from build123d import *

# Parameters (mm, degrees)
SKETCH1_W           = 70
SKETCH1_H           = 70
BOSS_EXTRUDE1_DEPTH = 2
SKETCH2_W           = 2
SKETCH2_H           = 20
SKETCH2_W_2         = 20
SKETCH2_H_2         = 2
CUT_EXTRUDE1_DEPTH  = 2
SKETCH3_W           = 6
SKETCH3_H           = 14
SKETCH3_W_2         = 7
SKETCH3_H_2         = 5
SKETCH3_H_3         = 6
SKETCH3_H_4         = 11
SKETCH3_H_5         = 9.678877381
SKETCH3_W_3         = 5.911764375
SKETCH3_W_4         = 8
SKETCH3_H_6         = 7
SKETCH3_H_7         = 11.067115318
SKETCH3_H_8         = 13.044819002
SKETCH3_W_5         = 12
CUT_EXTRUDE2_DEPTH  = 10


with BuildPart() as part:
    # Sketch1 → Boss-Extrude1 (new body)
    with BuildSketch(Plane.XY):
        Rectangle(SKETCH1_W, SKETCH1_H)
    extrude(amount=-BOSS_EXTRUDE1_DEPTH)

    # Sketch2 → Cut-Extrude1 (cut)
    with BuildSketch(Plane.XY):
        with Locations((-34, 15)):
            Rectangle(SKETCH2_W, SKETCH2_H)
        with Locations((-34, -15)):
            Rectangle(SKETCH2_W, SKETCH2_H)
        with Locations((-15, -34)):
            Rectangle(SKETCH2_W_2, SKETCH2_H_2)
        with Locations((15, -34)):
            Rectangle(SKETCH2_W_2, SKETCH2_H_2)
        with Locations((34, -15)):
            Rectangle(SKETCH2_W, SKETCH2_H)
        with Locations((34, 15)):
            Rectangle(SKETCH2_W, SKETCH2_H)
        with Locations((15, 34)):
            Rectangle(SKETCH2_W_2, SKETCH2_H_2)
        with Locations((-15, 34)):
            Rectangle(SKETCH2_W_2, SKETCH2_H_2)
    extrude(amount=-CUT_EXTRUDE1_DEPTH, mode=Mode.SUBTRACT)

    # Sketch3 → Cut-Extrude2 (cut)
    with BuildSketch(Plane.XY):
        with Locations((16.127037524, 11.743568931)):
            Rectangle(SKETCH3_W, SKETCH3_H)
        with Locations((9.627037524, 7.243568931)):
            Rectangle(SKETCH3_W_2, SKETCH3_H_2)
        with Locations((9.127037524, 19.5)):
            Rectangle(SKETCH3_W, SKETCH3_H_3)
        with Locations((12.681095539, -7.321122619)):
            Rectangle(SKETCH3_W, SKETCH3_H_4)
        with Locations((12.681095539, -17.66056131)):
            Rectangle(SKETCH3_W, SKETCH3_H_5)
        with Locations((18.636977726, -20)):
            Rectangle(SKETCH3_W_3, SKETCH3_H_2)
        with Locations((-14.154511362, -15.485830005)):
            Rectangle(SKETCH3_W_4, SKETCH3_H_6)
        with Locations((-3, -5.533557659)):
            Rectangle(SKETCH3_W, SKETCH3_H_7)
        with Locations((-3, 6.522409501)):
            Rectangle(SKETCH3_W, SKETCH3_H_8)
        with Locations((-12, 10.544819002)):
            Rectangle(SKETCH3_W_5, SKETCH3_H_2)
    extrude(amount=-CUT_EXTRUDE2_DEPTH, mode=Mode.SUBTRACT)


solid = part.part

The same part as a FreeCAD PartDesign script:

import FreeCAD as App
import Part
import Sketcher

V = App.Vector
Q = App.Units.Quantity

doc = App.newDocument("Part")
params = doc.addObject("Spreadsheet::Sheet", "Params")
for row, (alias, value) in enumerate([
    ("sketch1_width", "70 mm"),
    ("pad1_length", "2 mm"),
    ("sketch2_width", "2 mm"),
    ("sketch2_width2", "20 mm"),
    ("pocket1_length", "2 mm"),
    ("sketch3_width", "7 mm"),
    ("sketch3_width2", "13 mm"),
    ("sketch3_width3", "8 mm"),
    ("sketch3_width4", "18 mm"),
    ("sketch3_height", "9 mm"),
    ("pocket2_length", "10 mm"),
], start=1):
    params.set(f"A{row}", alias)
    params.set(f"B{row}", "=" + value)
    params.setAlias(f"B{row}", alias)

body = doc.addObject("PartDesign::Body", "Body")

sketch1 = doc.addObject("Sketcher::SketchObject", "Sketch")
body.addObject(sketch1)
sketch1.AttachmentSupport = (doc.XY_Plane, [""])
sketch1.MapMode = "FlatFace"
sketch1.addGeometry(Part.LineSegment(V(-35, 35, 0), V(-35, -35, 0)), False)
sketch1.addGeometry(Part.LineSegment(V(-35, -35, 0), V(35, -35, 0)), False)
sketch1.addGeometry(Part.LineSegment(V(35, -35, 0), V(35, 35, 0)), False)
sketch1.addGeometry(Part.LineSegment(V(35, 35, 0), V(-35, 35, 0)), False)
sketch1.addConstraint(Sketcher.Constraint("Coincident", 0, 2, 1, 1))
sketch1.addConstraint(Sketcher.Constraint("Coincident", 1, 2, 2, 1))
sketch1.addConstraint(Sketcher.Constraint("Coincident", 2, 2, 3, 1))
sketch1.addConstraint(Sketcher.Constraint("Coincident", 3, 2, 0, 1))
sketch1.addConstraint(Sketcher.Constraint("Vertical", 0))
sketch1.addConstraint(Sketcher.Constraint("Horizontal", 1))
sketch1.addConstraint(Sketcher.Constraint("Vertical", 2))
sketch1.addConstraint(Sketcher.Constraint("Horizontal", 3))
sketch1.addConstraint(Sketcher.Constraint("Symmetric", 0, 2, 2, 2, -1, 1))
sketch1.addConstraint(Sketcher.Constraint("Equal", 3, 0))
sketch1.addConstraint(Sketcher.Constraint("DistanceX", 1, 1, 1, 2, Q("70 mm")))
sketch1.setExpression("Constraints[10]", "Params.sketch1_width")
pad1 = doc.addObject("PartDesign::Pad", "Pad")
body.addObject(pad1)
pad1.Profile = sketch1
pad1.setExpression("Length", "Params.pad1_length")
pad1.Reversed = True

sketch2 = doc.addObject("Sketcher::SketchObject", "Sketch001")
body.addObject(sketch2)
sketch2.AttachmentSupport = (doc.XY_Plane, [""])
sketch2.MapMode = "FlatFace"
sketch2.addGeometry(Part.LineSegment(V(-35, 25, 0), V(-35, 5, 0)), False)
sketch2.addGeometry(Part.LineSegment(V(-35, 5, 0), V(-33, 5, 0)), False)
sketch2.addGeometry(Part.LineSegment(V(-33, 5, 0), V(-33, 25, 0)), False)
sketch2.addGeometry(Part.LineSegment(V(-33, 25, 0), V(-35, 25, 0)), False)
sketch2.addGeometry(Part.LineSegment(V(-35, -5, 0), V(-35, -25, 0)), False)
sketch2.addGeometry(Part.LineSegment(V(-35, -25, 0), V(-33, -25, 0)), False)
sketch2.addGeometry(Part.LineSegment(V(-33, -25, 0), V(-33, -5, 0)), False)
sketch2.addGeometry(Part.LineSegment(V(-33, -5, 0), V(-35, -5, 0)), False)
sketch2.addGeometry(Part.LineSegment(V(-25, -33, 0), V(-25, -35, 0)), False)
sketch2.addGeometry(Part.LineSegment(V(-25, -35, 0), V(-5, -35, 0)), False)
sketch2.addGeometry(Part.LineSegment(V(-5, -35, 0), V(-5, -33, 0)), False)
sketch2.addGeometry(Part.LineSegment(V(-5, -33, 0), V(-25, -33, 0)), False)
sketch2.addGeometry(Part.LineSegment(V(5, -33, 0), V(5, -35, 0)), False)
sketch2.addGeometry(Part.LineSegment(V(5, -35, 0), V(25, -35, 0)), False)
sketch2.addGeometry(Part.LineSegment(V(25, -35, 0), V(25, -33, 0)), False)
sketch2.addGeometry(Part.LineSegment(V(25, -33, 0), V(5, -33, 0)), False)
sketch2.addGeometry(Part.LineSegment(V(33, -5, 0), V(33, -25, 0)), False)
sketch2.addGeometry(Part.LineSegment(V(33, -25, 0), V(35, -25, 0)), False)
sketch2.addGeometry(Part.LineSegment(V(35, -25, 0), V(35, -5, 0)), False)
sketch2.addGeometry(Part.LineSegment(V(35, -5, 0), V(33, -5, 0)), False)
sketch2.addGeometry(Part.LineSegment(V(33, 25, 0), V(33, 5, 0)), False)
sketch2.addGeometry(Part.LineSegment(V(33, 5, 0), V(35, 5, 0)), False)
sketch2.addGeometry(Part.LineSegment(V(35, 5, 0), V(35, 25, 0)), False)
sketch2.addGeometry(Part.LineSegment(V(35, 25, 0), V(33, 25, 0)), False)
sketch2.addGeometry(Part.LineSegment(V(5, 35, 0), V(5, 33, 0)), False)
sketch2.addGeometry(Part.LineSegment(V(5, 33, 0), V(25, 33, 0)), False)
sketch2.addGeometry(Part.LineSegment(V(25, 33, 0), V(25, 35, 0)), False)
sketch2.addGeometry(Part.LineSegment(V(25, 35, 0), V(5, 35, 0)), False)
sketch2.addGeometry(Part.LineSegment(V(-25, 35, 0), V(-25, 33, 0)), False)
sketch2.addGeometry(Part.LineSegment(V(-25, 33, 0), V(-5, 33, 0)), False)
sketch2.addGeometry(Part.LineSegment(V(-5, 33, 0), V(-5, 35, 0)), False)
sketch2.addGeometry(Part.LineSegment(V(-5, 35, 0), V(-25, 35, 0)), False)
sketch2.addConstraint(Sketcher.Constraint("Coincident", 0, 2, 1, 1))
sketch2.addConstraint(Sketcher.Constraint("Coincident", 1, 2, 2, 1))
sketch2.addConstraint(Sketcher.Constraint("Coincident", 2, 2, 3, 1))
sketch2.addConstraint(Sketcher.Constraint("Coincident", 3, 2, 0, 1))
sketch2.addConstraint(Sketcher.Constraint("Coincident", 4, 2, 5, 1))
sketch2.addConstraint(Sketcher.Constraint("Coincident", 5, 2, 6, 1))
sketch2.addConstraint(Sketcher.Constraint("Coincident", 6, 2, 7, 1))
sketch2.addConstraint(Sketcher.Constraint("Coincident", 7, 2, 4, 1))
sketch2.addConstraint(Sketcher.Constraint("Coincident", 8, 2, 9, 1))
sketch2.addConstraint(Sketcher.Constraint("Coincident", 9, 2, 10, 1))
sketch2.addConstraint(Sketcher.Constraint("Coincident", 10, 2, 11, 1))
sketch2.addConstraint(Sketcher.Constraint("Coincident", 11, 2, 8, 1))
sketch2.addConstraint(Sketcher.Constraint("Coincident", 12, 2, 13, 1))
sketch2.addConstraint(Sketcher.Constraint("Coincident", 13, 2, 14, 1))
sketch2.addConstraint(Sketcher.Constraint("Coincident", 14, 2, 15, 1))
sketch2.addConstraint(Sketcher.Constraint("Coincident", 15, 2, 12, 1))
sketch2.addConstraint(Sketcher.Constraint("Coincident", 16, 2, 17, 1))
sketch2.addConstraint(Sketcher.Constraint("Coincident", 17, 2, 18, 1))
sketch2.addConstraint(Sketcher.Constraint("Coincident", 18, 2, 19, 1))
sketch2.addConstraint(Sketcher.Constraint("Coincident", 19, 2, 16, 1))
sketch2.addConstraint(Sketcher.Constraint("Coincident", 20, 2, 21, 1))
sketch2.addConstraint(Sketcher.Constraint("Coincident", 21, 2, 22, 1))
sketch2.addConstraint(Sketcher.Constraint("Coincident", 22, 2, 23, 1))
sketch2.addConstraint(Sketcher.Constraint("Coincident", 23, 2, 20, 1))
sketch2.addConstraint(Sketcher.Constraint("Coincident", 24, 2, 25, 1))
sketch2.addConstraint(Sketcher.Constraint("Coincident", 25, 2, 26, 1))
sketch2.addConstraint(Sketcher.Constraint("Coincident", 26, 2, 27, 1))
sketch2.addConstraint(Sketcher.Constraint("Coincident", 27, 2, 24, 1))
sketch2.addConstraint(Sketcher.Constraint("Coincident", 28, 2, 29, 1))
sketch2.addConstraint(Sketcher.Constraint("Coincident", 29, 2, 30, 1))
sketch2.addConstraint(Sketcher.Constraint("Coincident", 30, 2, 31, 1))
sketch2.addConstraint(Sketcher.Constraint("Coincident", 31, 2, 28, 1))
sketch2.addConstraint(Sketcher.Constraint("Vertical", 0))
sketch2.addConstraint(Sketcher.Constraint("Horizontal", 1))
sketch2.addConstraint(Sketcher.Constraint("Vertical", 2))
sketch2.addConstraint(Sketcher.Constraint("Horizontal", 3))
sketch2.addConstraint(Sketcher.Constraint("Vertical", 4))
sketch2.addConstraint(Sketcher.Constraint("Horizontal", 5))
sketch2.addConstraint(Sketcher.Constraint("Vertical", 6))
sketch2.addConstraint(Sketcher.Constraint("Horizontal", 7))
sketch2.addConstraint(Sketcher.Constraint("Vertical", 8))
sketch2.addConstraint(Sketcher.Constraint("Horizontal", 9))
sketch2.addConstraint(Sketcher.Constraint("Vertical", 10))
sketch2.addConstraint(Sketcher.Constraint("Horizontal", 11))
sketch2.addConstraint(Sketcher.Constraint("Vertical", 12))
sketch2.addConstraint(Sketcher.Constraint("Horizontal", 13))
sketch2.addConstraint(Sketcher.Constraint("Vertical", 14))
sketch2.addConstraint(Sketcher.Constraint("Horizontal", 15))
sketch2.addConstraint(Sketcher.Constraint("Vertical", 16))
sketch2.addConstraint(Sketcher.Constraint("Horizontal", 17))
sketch2.addConstraint(Sketcher.Constraint("Vertical", 18))
sketch2.addConstraint(Sketcher.Constraint("Horizontal", 19))
sketch2.addConstraint(Sketcher.Constraint("Vertical", 20))
sketch2.addConstraint(Sketcher.Constraint("Horizontal", 21))
sketch2.addConstraint(Sketcher.Constraint("Vertical", 22))
sketch2.addConstraint(Sketcher.Constraint("Horizontal", 23))
sketch2.addConstraint(Sketcher.Constraint("Vertical", 24))
sketch2.addConstraint(Sketcher.Constraint("Horizontal", 25))
sketch2.addConstraint(Sketcher.Constraint("Vertical", 26))
sketch2.addConstraint(Sketcher.Constraint("Horizontal", 27))
sketch2.addConstraint(Sketcher.Constraint("Vertical", 28))
sketch2.addConstraint(Sketcher.Constraint("Horizontal", 29))
sketch2.addConstraint(Sketcher.Constraint("Vertical", 30))
sketch2.addConstraint(Sketcher.Constraint("Horizontal", 31))
sketch2.addConstraint(Sketcher.Constraint("Symmetric", 2, 2, 16, 2, -1, 1))
sketch2.addConstraint(Sketcher.Constraint("Symmetric", 0, 2, 18, 2, -1, 1))
sketch2.addConstraint(Sketcher.Constraint("Symmetric", 6, 2, 20, 2, -1, 1))
sketch2.addConstraint(Sketcher.Constraint("Symmetric", 4, 2, 22, 2, -1, 1))
sketch2.addConstraint(Sketcher.Constraint("Symmetric", 10, 2, 24, 2, -1, 1))
sketch2.addConstraint(Sketcher.Constraint("Symmetric", 8, 2, 26, 2, -1, 1))
sketch2.addConstraint(Sketcher.Constraint("Symmetric", 14, 2, 28, 2, -1, 1))
sketch2.addConstraint(Sketcher.Constraint("Symmetric", 12, 2, 30, 2, -1, 1))
sketch2.addConstraint(Sketcher.Constraint("Symmetric", 9, 2, 12, 2, -2))
sketch2.addConstraint(Sketcher.Constraint("Symmetric", 11, 2, 14, 2, -2))
sketch2.addConstraint(Sketcher.Constraint("Symmetric", 5, 2, 16, 2, -2))
sketch2.addConstraint(Sketcher.Constraint("Symmetric", 7, 2, 18, 2, -2))
sketch2.addConstraint(Sketcher.Constraint("Equal", 31, 0))
sketch2.addConstraint(Sketcher.Constraint("Equal", 23, 8))
sketch2.addConstraint(Sketcher.Constraint("DistanceX", 1, 1, 1, 2, Q("2 mm")))
sketch2.addConstraint(Sketcher.Constraint("DistanceX", 9, 1, 9, 2, Q("20 mm")))
sketch2.addConstraint(Sketcher.Constraint("DistanceX", 0, 2, -1, 1, Q("35 mm")))
sketch2.addConstraint(Sketcher.Constraint("DistanceY", -1, 1, 0, 2, Q("5 mm")))
sketch2.addConstraint(Sketcher.Constraint("DistanceX", 8, 2, -1, 1, Q("25 mm")))
sketch2.addConstraint(Sketcher.Constraint("DistanceY", 8, 2, -1, 1, Q("35 mm")))
sketch2.setExpression("Constraints[78]", "Params.sketch2_width")
sketch2.setExpression("Constraints[79]", "Params.sketch2_width2")
pocket1 = doc.addObject("PartDesign::Pocket", "Pocket")
body.addObject(pocket1)
pocket1.Profile = sketch2
pocket1.setExpression("Length", "Params.pocket1_length")

sketch3 = doc.addObject("Sketcher::SketchObject", "Sketch002")
body.addObject(sketch3)
sketch3.AttachmentSupport = (doc.XY_Plane, [""])
sketch3.MapMode = "FlatFace"
sketch3.addGeometry(Part.LineSegment(V(13, 19, 0), V(13, 10, 0)), False)
sketch3.addGeometry(Part.LineSegment(V(13, 10, 0), V(6, 10, 0)), False)
sketch3.addGeometry(Part.LineSegment(V(6, 10, 0), V(6, 5, 0)), False)
sketch3.addGeometry(Part.LineSegment(V(6, 5, 0), V(19, 5, 0)), False)
sketch3.addGeometry(Part.LineSegment(V(19, 5, 0), V(19, 19, 0)), False)
sketch3.addGeometry(Part.LineSegment(V(19, 19, 0), V(13, 19, 0)), False)
sketch3.addGeometry(Part.LineSegment(V(6, 22, 0), V(6, 16, 0)), False)
sketch3.addGeometry(Part.LineSegment(V(6, 16, 0), V(12, 16, 0)), False)
sketch3.addGeometry(Part.LineSegment(V(12, 16, 0), V(12, 22, 0)), False)
sketch3.addGeometry(Part.LineSegment(V(12, 22, 0), V(6, 22, 0)), False)
sketch3.addGeometry(Part.LineSegment(V(10, -2, 0), V(10, -22, 0)), False)
sketch3.addGeometry(Part.LineSegment(V(10, -22, 0), V(16, -22, 0)), False)
sketch3.addGeometry(Part.LineSegment(V(16, -22, 0), V(22, -22, 0)), False)
sketch3.addGeometry(Part.LineSegment(V(22, -22, 0), V(22, -18, 0)), False)
sketch3.addGeometry(Part.LineSegment(V(22, -18, 0), V(16, -18, 0)), False)
sketch3.addGeometry(Part.LineSegment(V(16, -18, 0), V(16, -2, 0)), False)
sketch3.addGeometry(Part.LineSegment(V(16, -2, 0), V(10, -2, 0)), False)
sketch3.addGeometry(Part.LineSegment(V(-18, -12, 0), V(-18, -19, 0)), False)
sketch3.addGeometry(Part.LineSegment(V(-18, -19, 0), V(-10, -19, 0)), False)
sketch3.addGeometry(Part.LineSegment(V(-10, -19, 0), V(-10, -12, 0)), False)
sketch3.addGeometry(Part.LineSegment(V(-10, -12, 0), V(-18, -12, 0)), False)
sketch3.addGeometry(Part.LineSegment(V(-6, -11, 0), V(0, -11, 0)), False)
sketch3.addGeometry(Part.LineSegment(V(0, -11, 0), V(0, 13, 0)), False)
sketch3.addGeometry(Part.LineSegment(V(0, 13, 0), V(-18, 13, 0)), False)
sketch3.addGeometry(Part.LineSegment(V(-18, 13, 0), V(-18, 8, 0)), False)
sketch3.addGeometry(Part.LineSegment(V(-18, 8, 0), V(-6, 8, 0)), False)
sketch3.addGeometry(Part.LineSegment(V(-6, 8, 0), V(-6, -11, 0)), False)
sketch3.addConstraint(Sketcher.Constraint("Coincident", 0, 2, 1, 1))
sketch3.addConstraint(Sketcher.Constraint("Coincident", 1, 2, 2, 1))
sketch3.addConstraint(Sketcher.Constraint("Coincident", 2, 2, 3, 1))
sketch3.addConstraint(Sketcher.Constraint("Coincident", 3, 2, 4, 1))
sketch3.addConstraint(Sketcher.Constraint("Coincident", 4, 2, 5, 1))
sketch3.addConstraint(Sketcher.Constraint("Coincident", 5, 2, 0, 1))
sketch3.addConstraint(Sketcher.Constraint("Coincident", 6, 2, 7, 1))
sketch3.addConstraint(Sketcher.Constraint("Coincident", 7, 2, 8, 1))
sketch3.addConstraint(Sketcher.Constraint("Coincident", 8, 2, 9, 1))
sketch3.addConstraint(Sketcher.Constraint("Coincident", 9, 2, 6, 1))
sketch3.addConstraint(Sketcher.Constraint("Coincident", 10, 2, 11, 1))
sketch3.addConstraint(Sketcher.Constraint("Coincident", 11, 2, 12, 1))
sketch3.addConstraint(Sketcher.Constraint("Coincident", 12, 2, 13, 1))
sketch3.addConstraint(Sketcher.Constraint("Coincident", 13, 2, 14, 1))
sketch3.addConstraint(Sketcher.Constraint("Coincident", 14, 2, 15, 1))
sketch3.addConstraint(Sketcher.Constraint("Coincident", 15, 2, 16, 1))
sketch3.addConstraint(Sketcher.Constraint("Coincident", 16, 2, 10, 1))
sketch3.addConstraint(Sketcher.Constraint("Coincident", 17, 2, 18, 1))
sketch3.addConstraint(Sketcher.Constraint("Coincident", 18, 2, 19, 1))
sketch3.addConstraint(Sketcher.Constraint("Coincident", 19, 2, 20, 1))
sketch3.addConstraint(Sketcher.Constraint("Coincident", 20, 2, 17, 1))
sketch3.addConstraint(Sketcher.Constraint("Coincident", 21, 2, 22, 1))
sketch3.addConstraint(Sketcher.Constraint("Coincident", 22, 2, 23, 1))
sketch3.addConstraint(Sketcher.Constraint("Coincident", 23, 2, 24, 1))
sketch3.addConstraint(Sketcher.Constraint("Coincident", 24, 2, 25, 1))
sketch3.addConstraint(Sketcher.Constraint("Coincident", 25, 2, 26, 1))
sketch3.addConstraint(Sketcher.Constraint("Coincident", 26, 2, 21, 1))
sketch3.addConstraint(Sketcher.Constraint("Vertical", 0))
sketch3.addConstraint(Sketcher.Constraint("Horizontal", 1))
sketch3.addConstraint(Sketcher.Constraint("Vertical", 2))
sketch3.addConstraint(Sketcher.Constraint("Horizontal", 3))
sketch3.addConstraint(Sketcher.Constraint("Vertical", 4))
sketch3.addConstraint(Sketcher.Constraint("Horizontal", 5))
sketch3.addConstraint(Sketcher.Constraint("Vertical", 6))
sketch3.addConstraint(Sketcher.Constraint("Horizontal", 7))
sketch3.addConstraint(Sketcher.Constraint("Vertical", 8))
sketch3.addConstraint(Sketcher.Constraint("Horizontal", 9))
sketch3.addConstraint(Sketcher.Constraint("Vertical", 10))
sketch3.addConstraint(Sketcher.Constraint("Horizontal", 11))
sketch3.addConstraint(Sketcher.Constraint("Horizontal", 12))
sketch3.addConstraint(Sketcher.Constraint("Vertical", 13))
sketch3.addConstraint(Sketcher.Constraint("Horizontal", 14))
sketch3.addConstraint(Sketcher.Constraint("Vertical", 15))
sketch3.addConstraint(Sketcher.Constraint("Horizontal", 16))
sketch3.addConstraint(Sketcher.Constraint("Vertical", 17))
sketch3.addConstraint(Sketcher.Constraint("Horizontal", 18))
sketch3.addConstraint(Sketcher.Constraint("Vertical", 19))
sketch3.addConstraint(Sketcher.Constraint("Horizontal", 20))
sketch3.addConstraint(Sketcher.Constraint("Horizontal", 21))
sketch3.addConstraint(Sketcher.Constraint("Vertical", 22))
sketch3.addConstraint(Sketcher.Constraint("Horizontal", 23))
sketch3.addConstraint(Sketcher.Constraint("Vertical", 24))
sketch3.addConstraint(Sketcher.Constraint("Horizontal", 25))
sketch3.addConstraint(Sketcher.Constraint("Vertical", 26))
sketch3.addConstraint(Sketcher.Constraint("PointOnObject", 21, 2, -2))
sketch3.addConstraint(Sketcher.Constraint("Vertical", 2, 2, 6, 2))
sketch3.addConstraint(Sketcher.Constraint("Vertical", 11, 2, 14, 2))
sketch3.addConstraint(Sketcher.Constraint("Equal", 5, 7))
sketch3.addConstraint(Sketcher.Constraint("Equal", 9, 11))
sketch3.addConstraint(Sketcher.Constraint("Equal", 16, 21))
sketch3.addConstraint(Sketcher.Constraint("Equal", 21, 6))
sketch3.addConstraint(Sketcher.Constraint("Equal", 2, 13))
sketch3.addConstraint(Sketcher.Constraint("Equal", 1, 17))
sketch3.addConstraint(Sketcher.Constraint("Equal", 13, 24))
sketch3.addConstraint(Sketcher.Constraint("DistanceX", 1, 2, 1, 1, Q("7 mm")))
sketch3.addConstraint(Sketcher.Constraint("DistanceX", 3, 1, 3, 2, Q("13 mm")))
sketch3.addConstraint(Sketcher.Constraint("DistanceX", 18, 1, 18, 2, Q("8 mm")))
sketch3.addConstraint(Sketcher.Constraint("DistanceX", 23, 2, 23, 1, Q("18 mm")))
sketch3.addConstraint(Sketcher.Constraint("DistanceY", 0, 2, 0, 1, Q("9 mm")))
sketch3.addConstraint(Sketcher.Constraint("DistanceY", 2, 2, 2, 1, Q("5 mm")))
sketch3.addConstraint(Sketcher.Constraint("DistanceY", 10, 2, 7, 2, Q("39 mm")))
sketch3.addConstraint(Sketcher.Constraint("DistanceY", -1, 1, 6, 2, Q("16.5 mm")))
sketch3.addConstraint(Sketcher.Constraint("DistanceY", 17, 2, 2, 2, Q("23.729399 mm")))
sketch3.addConstraint(Sketcher.Constraint("DistanceX", 12, 1, 12, 2, Q("5.911764 mm")))
sketch3.addConstraint(Sketcher.Constraint("DistanceY", 10, 2, 10, 1, Q("20.678877 mm")))
sketch3.addConstraint(Sketcher.Constraint("DistanceY", 22, 1, 22, 2, Q("24.111934 mm")))
sketch3.addConstraint(Sketcher.Constraint("DistanceY", -1, 1, 0, 2, Q("9.743569 mm")))
sketch3.addConstraint(Sketcher.Constraint("DistanceX", -1, 1, 12, 2, Q("21.59286 mm")))
sketch3.addConstraint(Sketcher.Constraint("DistanceX", 17, 2, -1, 1, Q("18.154511 mm")))
sketch3.addConstraint(Sketcher.Constraint("DistanceY", -1, 1, 22, 2, Q("13.044819 mm")))
sketch3.addConstraint(Sketcher.Constraint("DistanceX", 2, 2, 10, 2, Q("3.554058 mm")))
sketch3.setExpression("Constraints[64]", "Params.sketch3_width")
sketch3.setExpression("Constraints[65]", "Params.sketch3_width2")
sketch3.setExpression("Constraints[66]", "Params.sketch3_width3")
sketch3.setExpression("Constraints[67]", "Params.sketch3_width4")
sketch3.setExpression("Constraints[68]", "Params.sketch3_height")
pocket2 = doc.addObject("PartDesign::Pocket", "Pocket001")
body.addObject(pocket2)
pocket2.Profile = sketch3
pocket2.setExpression("Length", "Params.pocket2_length")

doc.recompute()
